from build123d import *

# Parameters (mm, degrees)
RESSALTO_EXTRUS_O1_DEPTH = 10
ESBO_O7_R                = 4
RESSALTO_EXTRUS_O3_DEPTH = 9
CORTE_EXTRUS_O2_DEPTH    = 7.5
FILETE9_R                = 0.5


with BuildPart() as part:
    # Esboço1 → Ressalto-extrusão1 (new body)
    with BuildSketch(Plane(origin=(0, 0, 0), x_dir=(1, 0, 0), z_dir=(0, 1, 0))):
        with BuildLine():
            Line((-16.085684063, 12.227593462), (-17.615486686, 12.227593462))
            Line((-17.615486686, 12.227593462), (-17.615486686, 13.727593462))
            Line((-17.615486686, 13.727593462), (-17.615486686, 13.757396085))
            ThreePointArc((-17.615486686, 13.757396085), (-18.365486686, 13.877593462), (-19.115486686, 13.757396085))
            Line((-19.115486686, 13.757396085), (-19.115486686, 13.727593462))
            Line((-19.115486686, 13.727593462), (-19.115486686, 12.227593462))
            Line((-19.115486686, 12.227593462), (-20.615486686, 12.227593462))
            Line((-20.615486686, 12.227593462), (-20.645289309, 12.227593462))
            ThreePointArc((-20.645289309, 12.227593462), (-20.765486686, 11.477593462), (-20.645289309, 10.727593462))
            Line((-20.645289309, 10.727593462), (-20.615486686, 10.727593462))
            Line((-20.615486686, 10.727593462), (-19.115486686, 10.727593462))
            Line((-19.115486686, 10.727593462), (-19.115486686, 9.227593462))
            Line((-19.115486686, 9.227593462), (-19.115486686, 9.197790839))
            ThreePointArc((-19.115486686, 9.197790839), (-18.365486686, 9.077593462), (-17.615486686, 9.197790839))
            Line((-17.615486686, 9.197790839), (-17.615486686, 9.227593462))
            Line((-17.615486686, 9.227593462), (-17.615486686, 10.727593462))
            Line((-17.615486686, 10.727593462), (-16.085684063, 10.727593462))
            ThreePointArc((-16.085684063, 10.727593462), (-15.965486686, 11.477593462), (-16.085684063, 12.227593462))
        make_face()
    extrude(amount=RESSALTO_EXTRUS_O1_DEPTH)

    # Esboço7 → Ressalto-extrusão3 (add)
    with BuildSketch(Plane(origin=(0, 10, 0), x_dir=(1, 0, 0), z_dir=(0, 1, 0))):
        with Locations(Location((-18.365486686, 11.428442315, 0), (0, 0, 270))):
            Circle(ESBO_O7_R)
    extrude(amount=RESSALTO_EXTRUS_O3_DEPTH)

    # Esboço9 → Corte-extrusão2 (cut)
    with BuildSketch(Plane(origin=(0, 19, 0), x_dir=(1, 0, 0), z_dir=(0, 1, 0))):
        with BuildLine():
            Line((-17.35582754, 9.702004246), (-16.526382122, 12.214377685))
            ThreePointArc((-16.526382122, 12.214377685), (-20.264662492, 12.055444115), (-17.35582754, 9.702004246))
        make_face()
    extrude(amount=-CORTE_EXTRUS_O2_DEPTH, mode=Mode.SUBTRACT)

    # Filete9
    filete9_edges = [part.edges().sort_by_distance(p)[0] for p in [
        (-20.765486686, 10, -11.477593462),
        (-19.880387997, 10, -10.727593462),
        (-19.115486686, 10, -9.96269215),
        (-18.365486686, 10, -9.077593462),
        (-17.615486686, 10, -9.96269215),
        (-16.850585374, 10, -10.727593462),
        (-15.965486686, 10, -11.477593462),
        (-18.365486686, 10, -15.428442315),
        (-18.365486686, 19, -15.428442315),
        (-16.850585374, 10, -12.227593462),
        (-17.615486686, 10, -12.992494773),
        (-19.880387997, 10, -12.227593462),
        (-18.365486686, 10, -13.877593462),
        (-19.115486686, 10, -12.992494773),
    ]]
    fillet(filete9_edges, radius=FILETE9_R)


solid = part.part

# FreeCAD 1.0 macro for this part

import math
import FreeCAD as App
import Part
import Sketcher

V = App.Vector
Q = App.Units.Quantity


def edges_at(feature, points):
    """Names of the edges that pass closest to the given points."""
    edges = feature.Shape.Edges
    near = lambda p: min(range(len(edges)), key=lambda i: edges[i].distToShape(Part.Vertex(*p))[0])
    return sorted({f"Edge{near(p) + 1}" for p in points})

doc = App.newDocument("Part")
params = doc.addObject("Spreadsheet::Sheet", "Params")
for row, (alias, value) in enumerate([
    ("sketch1_radius", "2.4 mm"),
    ("pad1_length", "10 mm"),
    ("sketch2_diameter", "8 mm"),
    ("pad2_length", "9 mm"),
    ("sketch3_radius", "2 mm"),
    ("pocket1_length", "7.5 mm"),
    ("fillet_radius", "0.5 mm"),
], start=1):
    params.set(f"A{row}", alias)
    params.set(f"B{row}", "=" + value)
    params.setAlias(f"B{row}", alias)

body = doc.addObject("PartDesign::Body", "Body")

# Sketch on XZ plane
sketch1 = body.newObject("Sketcher::SketchObject", "Sketch")
sketch1.AttachmentSupport = (doc.getObject("XZ_Plane"), [""])
sketch1.MapMode = "FlatFace"
sketch1.addGeometry([
    Part.LineSegment(V(-16.1, -12.2, 0), V(-17.6, -12.2, 0)),  # 0
    Part.LineSegment(V(-17.6, -12.2, 0), V(-17.6, -13.8, 0)),  # 1
    Part.ArcOfCircle(Part.Circle(V(-18.4, -11.5, 0), V(0, 0, 1), 2.4), math.radians(-108), math.radians(-72)),  # 2
    Part.LineSegment(V(-19.1, -13.8, 0), V(-19.1, -12.2, 0)),  # 3
    Part.LineSegment(V(-19.1, -12.2, 0), V(-20.6, -12.2, 0)),  # 4
    Part.ArcOfCircle(Part.Circle(V(-18.4, -11.5, 0), V(0, 0, 1), 2.4), math.radians(162), math.radians(198)),  # 5
    Part.LineSegment(V(-20.6, -10.7, 0), V(-19.1, -10.7, 0)),  # 6
    Part.LineSegment(V(-19.1, -10.7, 0), V(-19.1, -9.2, 0)),  # 7
    Part.ArcOfCircle(Part.Circle(V(-18.4, -11.5, 0), V(0, 0, 1), 2.4), math.radians(72), math.radians(108)),  # 8
    Part.LineSegment(V(-17.6, -9.2, 0), V(-17.6, -10.7, 0)),  # 9
    Part.LineSegment(V(-17.6, -10.7, 0), V(-16.1, -10.7, 0)),  # 10
    Part.ArcOfCircle(Part.Circle(V(-18.4, -11.5, 0), V(0, 0, 1), 2.4), math.radians(-18), math.radians(18)),  # 11
], False)
sketch1.addConstraint([
    Sketcher.Constraint("Coincident", 0, 2, 1, 1),
    Sketcher.Constraint("Coincident", 1, 2, 2, 2),
    Sketcher.Constraint("Coincident", 2, 1, 3, 1),
    Sketcher.Constraint("Coincident", 3, 2, 4, 1),
    Sketcher.Constraint("Coincident", 4, 2, 5, 2),
    Sketcher.Constraint("Coincident", 5, 1, 6, 1),
    Sketcher.Constraint("Coincident", 6, 2, 7, 1),
    Sketcher.Constraint("Coincident", 7, 2, 8, 2),
    Sketcher.Constraint("Coincident", 8, 1, 9, 1),
    Sketcher.Constraint("Coincident", 9, 2, 10, 1),
    Sketcher.Constraint("Coincident", 10, 2, 11, 2),
    Sketcher.Constraint("Coincident", 11, 1, 0, 1),
    Sketcher.Constraint("Horizontal", 0),
    Sketcher.Constraint("Vertical", 1),
    Sketcher.Constraint("Vertical", 3),
    Sketcher.Constraint("Horizontal", 4),
    Sketcher.Constraint("Horizontal", 6),
    Sketcher.Constraint("Vertical", 7),
    Sketcher.Constraint("Vertical", 9),
    Sketcher.Constraint("Horizontal", 10),
    Sketcher.Constraint("Coincident", 5, 3, 2, 3),
    Sketcher.Constraint("Coincident", 8, 3, 2, 3),
    Sketcher.Constraint("Coincident", 11, 3, 2, 3),
    Sketcher.Constraint("Equal", 2, 5),
    Sketcher.Constraint("Equal", 5, 8),
    Sketcher.Constraint("Equal", 8, 11),
    Sketcher.Constraint("Horizontal", 1, 2, 2, 1),
    Sketcher.Constraint("Horizontal", 0, 2, 3, 2),
    Sketcher.Constraint("Horizontal", 7, 2, 8, 1),
    Sketcher.Constraint("Horizontal", 6, 2, 9, 2),
    Sketcher.Constraint("Vertical", 4, 2, 5, 1),
    Sketcher.Constraint("Vertical", 3, 2, 6, 2),
    Sketcher.Constraint("Equal", 10, 1),
    Sketcher.Constraint("Radius", 2, Q("2.4 mm")),
    Sketcher.Constraint("DistanceX", 2, 1, 1, 2, Q("1.5 mm")),
    Sketcher.Constraint("DistanceX", 4, 2, -1, 1, Q("20.645289 mm")),
    Sketcher.Constraint("DistanceY", 7, 2, -1, 1, Q("9.197791 mm")),
])
sketch1.setExpression("Constraints[33]", "Params.sketch1_radius")
pad1 = body.newObject("PartDesign::Pad", "Pad")
pad1.Profile = sketch1
pad1.setExpression("Length", "Params.pad1_length")
pad1.Reversed = True

# Sketch on XZ plane
sketch2 = body.newObject("Sketcher::SketchObject", "Sketch001")
sketch2.AttachmentSupport = (doc.getObject("XZ_Plane"), [""])
sketch2.MapMode = "FlatFace"
sketch2.AttachmentOffset = App.Placement(V(0, 0, -10), App.Rotation())
sketch2.addGeometry(Part.Circle(V(-18.4, -11.4, 0), V(0, 0, 1), 4), False)
sketch2.addConstraint([
    Sketcher.Constraint("Diameter", 0, Q("8 mm")),
    Sketcher.Constraint("DistanceX", 0, 3, -1, 1, Q("18.365487 mm")),
    Sketcher.Constraint("DistanceY", 0, 3, -1, 1, Q("11.428442 mm")),
])
sketch2.setExpression("Constraints[0]", "Params.sketch2_diameter")
pad2 = body.newObject("PartDesign::Pad", "Pad001")
pad2.Profile = sketch2
pad2.setExpression("Length", "Params.pad2_length")
pad2.Reversed = True

# Sketch on XZ plane
sketch3 = body.newObject("Sketcher::SketchObject", "Sketch002")
sketch3.AttachmentSupport = (doc.getObject("XZ_Plane"), [""])
sketch3.MapMode = "FlatFace"
sketch3.AttachmentOffset = App.Placement(V(0, 0, -19), App.Rotation())
sketch3.addGeometry([
    Part.LineSegment(V(-17.4, -9.7, 0), V(-16.5, -12.2, 0)),
    Part.ArcOfCircle(Part.Circle(V(-18.4, -11.4, 0), V(0, 0, 1), 2), math.radians(60), math.radians(337)),
], False)
sketch3.addConstraint([
    Sketcher.Constraint("Coincident", 0, 1, 1, 1),
    Sketcher.Constraint("Coincident", 1, 2, 0, 2),
    Sketcher.Constraint("Radius", 1, Q("2 mm")),
    Sketcher.Constraint("Distance", 0, Q("2.645751 mm")),
    Sketcher.Constraint("DistanceX", 1, 3, 0, 1, Q("1.009659 mm")),
    Sketcher.Constraint("DistanceX", 1, 3, -1, 1, Q("18.365487 mm")),
    Sketcher.Constraint("DistanceY", 1, 3, -1, 1, Q("11.428442 mm")),
])
sketch3.setExpression("Constraints[2]", "Params.sketch3_radius")
pocket1 = body.newObject("PartDesign::Pocket", "Pocket")
pocket1.Profile = sketch3
pocket1.setExpression("Length", "Params.pocket1_length")
pocket1.Reversed = True
doc.recompute()

fillet = body.newObject("PartDesign::Fillet", "Fillet")
fillet.Base = (pocket1, edges_at(pocket1, [
    (-20.765, 10, -11.478),
    (-19.88, 10, -10.728),
    (-19.115, 10, -9.963),
    (-18.365, 10, -9.078),
    (-17.615, 10, -9.963),
    (-16.851, 10, -10.728),
    (-15.965, 10, -11.478),
    (-18.365, 10, -15.428),
    (-18.365, 19, -15.428),
    (-16.851, 10, -12.228),
    (-17.615, 10, -12.992),
    (-19.88, 10, -12.228),
    (-18.365, 10, -13.878),
    (-19.115, 10, -12.992),
]))
fillet.setExpression("Radius", "Params.fillet_radius")

doc.recompute()
